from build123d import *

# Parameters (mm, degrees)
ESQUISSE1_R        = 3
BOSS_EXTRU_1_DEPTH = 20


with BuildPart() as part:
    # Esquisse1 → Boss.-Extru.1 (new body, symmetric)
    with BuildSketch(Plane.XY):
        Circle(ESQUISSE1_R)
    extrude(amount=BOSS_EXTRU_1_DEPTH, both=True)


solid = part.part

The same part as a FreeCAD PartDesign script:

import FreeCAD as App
import Part
import Sketcher

doc = App.newDocument("Part")
params = doc.addObject("Spreadsheet::Sheet", "Params")
for row, (alias, value) in enumerate([
    ("sketch1_diameter", "6 mm"),
    ("pad1_length", "40 mm"),
], start=1):
    params.set(f"A{row}", alias)
    params.set(f"B{row}", "=" + value)
    params.setAlias(f"B{row}", alias)

body = doc.addObject("PartDesign::Body", "Body")

sketch1 = body.newObject("Sketcher::SketchObject", "Sketch")
sketch1.AttachmentSupport = (doc.getObject("XY_Plane"), [""])
sketch1.MapMode = "FlatFace"
sketch1.addGeometry(Part.Circle(App.Vector(0, 0, 0), App.Vector(0, 0, 1), 3), False)
sketch1.addConstraint([
    Sketcher.Constraint("Coincident", 0, 3, -1, 1),
    Sketcher.Constraint("Diameter", 0, 6.0),
])
sketch1.setExpression("Constraints[1]", "Params.sketch1_diameter")
pad1 = body.newObject("PartDesign::Pad", "Pad")
pad1.Profile = sketch1
pad1.setExpression("Length", "Params.pad1_length")
pad1.Midplane = True

doc.recompute()
